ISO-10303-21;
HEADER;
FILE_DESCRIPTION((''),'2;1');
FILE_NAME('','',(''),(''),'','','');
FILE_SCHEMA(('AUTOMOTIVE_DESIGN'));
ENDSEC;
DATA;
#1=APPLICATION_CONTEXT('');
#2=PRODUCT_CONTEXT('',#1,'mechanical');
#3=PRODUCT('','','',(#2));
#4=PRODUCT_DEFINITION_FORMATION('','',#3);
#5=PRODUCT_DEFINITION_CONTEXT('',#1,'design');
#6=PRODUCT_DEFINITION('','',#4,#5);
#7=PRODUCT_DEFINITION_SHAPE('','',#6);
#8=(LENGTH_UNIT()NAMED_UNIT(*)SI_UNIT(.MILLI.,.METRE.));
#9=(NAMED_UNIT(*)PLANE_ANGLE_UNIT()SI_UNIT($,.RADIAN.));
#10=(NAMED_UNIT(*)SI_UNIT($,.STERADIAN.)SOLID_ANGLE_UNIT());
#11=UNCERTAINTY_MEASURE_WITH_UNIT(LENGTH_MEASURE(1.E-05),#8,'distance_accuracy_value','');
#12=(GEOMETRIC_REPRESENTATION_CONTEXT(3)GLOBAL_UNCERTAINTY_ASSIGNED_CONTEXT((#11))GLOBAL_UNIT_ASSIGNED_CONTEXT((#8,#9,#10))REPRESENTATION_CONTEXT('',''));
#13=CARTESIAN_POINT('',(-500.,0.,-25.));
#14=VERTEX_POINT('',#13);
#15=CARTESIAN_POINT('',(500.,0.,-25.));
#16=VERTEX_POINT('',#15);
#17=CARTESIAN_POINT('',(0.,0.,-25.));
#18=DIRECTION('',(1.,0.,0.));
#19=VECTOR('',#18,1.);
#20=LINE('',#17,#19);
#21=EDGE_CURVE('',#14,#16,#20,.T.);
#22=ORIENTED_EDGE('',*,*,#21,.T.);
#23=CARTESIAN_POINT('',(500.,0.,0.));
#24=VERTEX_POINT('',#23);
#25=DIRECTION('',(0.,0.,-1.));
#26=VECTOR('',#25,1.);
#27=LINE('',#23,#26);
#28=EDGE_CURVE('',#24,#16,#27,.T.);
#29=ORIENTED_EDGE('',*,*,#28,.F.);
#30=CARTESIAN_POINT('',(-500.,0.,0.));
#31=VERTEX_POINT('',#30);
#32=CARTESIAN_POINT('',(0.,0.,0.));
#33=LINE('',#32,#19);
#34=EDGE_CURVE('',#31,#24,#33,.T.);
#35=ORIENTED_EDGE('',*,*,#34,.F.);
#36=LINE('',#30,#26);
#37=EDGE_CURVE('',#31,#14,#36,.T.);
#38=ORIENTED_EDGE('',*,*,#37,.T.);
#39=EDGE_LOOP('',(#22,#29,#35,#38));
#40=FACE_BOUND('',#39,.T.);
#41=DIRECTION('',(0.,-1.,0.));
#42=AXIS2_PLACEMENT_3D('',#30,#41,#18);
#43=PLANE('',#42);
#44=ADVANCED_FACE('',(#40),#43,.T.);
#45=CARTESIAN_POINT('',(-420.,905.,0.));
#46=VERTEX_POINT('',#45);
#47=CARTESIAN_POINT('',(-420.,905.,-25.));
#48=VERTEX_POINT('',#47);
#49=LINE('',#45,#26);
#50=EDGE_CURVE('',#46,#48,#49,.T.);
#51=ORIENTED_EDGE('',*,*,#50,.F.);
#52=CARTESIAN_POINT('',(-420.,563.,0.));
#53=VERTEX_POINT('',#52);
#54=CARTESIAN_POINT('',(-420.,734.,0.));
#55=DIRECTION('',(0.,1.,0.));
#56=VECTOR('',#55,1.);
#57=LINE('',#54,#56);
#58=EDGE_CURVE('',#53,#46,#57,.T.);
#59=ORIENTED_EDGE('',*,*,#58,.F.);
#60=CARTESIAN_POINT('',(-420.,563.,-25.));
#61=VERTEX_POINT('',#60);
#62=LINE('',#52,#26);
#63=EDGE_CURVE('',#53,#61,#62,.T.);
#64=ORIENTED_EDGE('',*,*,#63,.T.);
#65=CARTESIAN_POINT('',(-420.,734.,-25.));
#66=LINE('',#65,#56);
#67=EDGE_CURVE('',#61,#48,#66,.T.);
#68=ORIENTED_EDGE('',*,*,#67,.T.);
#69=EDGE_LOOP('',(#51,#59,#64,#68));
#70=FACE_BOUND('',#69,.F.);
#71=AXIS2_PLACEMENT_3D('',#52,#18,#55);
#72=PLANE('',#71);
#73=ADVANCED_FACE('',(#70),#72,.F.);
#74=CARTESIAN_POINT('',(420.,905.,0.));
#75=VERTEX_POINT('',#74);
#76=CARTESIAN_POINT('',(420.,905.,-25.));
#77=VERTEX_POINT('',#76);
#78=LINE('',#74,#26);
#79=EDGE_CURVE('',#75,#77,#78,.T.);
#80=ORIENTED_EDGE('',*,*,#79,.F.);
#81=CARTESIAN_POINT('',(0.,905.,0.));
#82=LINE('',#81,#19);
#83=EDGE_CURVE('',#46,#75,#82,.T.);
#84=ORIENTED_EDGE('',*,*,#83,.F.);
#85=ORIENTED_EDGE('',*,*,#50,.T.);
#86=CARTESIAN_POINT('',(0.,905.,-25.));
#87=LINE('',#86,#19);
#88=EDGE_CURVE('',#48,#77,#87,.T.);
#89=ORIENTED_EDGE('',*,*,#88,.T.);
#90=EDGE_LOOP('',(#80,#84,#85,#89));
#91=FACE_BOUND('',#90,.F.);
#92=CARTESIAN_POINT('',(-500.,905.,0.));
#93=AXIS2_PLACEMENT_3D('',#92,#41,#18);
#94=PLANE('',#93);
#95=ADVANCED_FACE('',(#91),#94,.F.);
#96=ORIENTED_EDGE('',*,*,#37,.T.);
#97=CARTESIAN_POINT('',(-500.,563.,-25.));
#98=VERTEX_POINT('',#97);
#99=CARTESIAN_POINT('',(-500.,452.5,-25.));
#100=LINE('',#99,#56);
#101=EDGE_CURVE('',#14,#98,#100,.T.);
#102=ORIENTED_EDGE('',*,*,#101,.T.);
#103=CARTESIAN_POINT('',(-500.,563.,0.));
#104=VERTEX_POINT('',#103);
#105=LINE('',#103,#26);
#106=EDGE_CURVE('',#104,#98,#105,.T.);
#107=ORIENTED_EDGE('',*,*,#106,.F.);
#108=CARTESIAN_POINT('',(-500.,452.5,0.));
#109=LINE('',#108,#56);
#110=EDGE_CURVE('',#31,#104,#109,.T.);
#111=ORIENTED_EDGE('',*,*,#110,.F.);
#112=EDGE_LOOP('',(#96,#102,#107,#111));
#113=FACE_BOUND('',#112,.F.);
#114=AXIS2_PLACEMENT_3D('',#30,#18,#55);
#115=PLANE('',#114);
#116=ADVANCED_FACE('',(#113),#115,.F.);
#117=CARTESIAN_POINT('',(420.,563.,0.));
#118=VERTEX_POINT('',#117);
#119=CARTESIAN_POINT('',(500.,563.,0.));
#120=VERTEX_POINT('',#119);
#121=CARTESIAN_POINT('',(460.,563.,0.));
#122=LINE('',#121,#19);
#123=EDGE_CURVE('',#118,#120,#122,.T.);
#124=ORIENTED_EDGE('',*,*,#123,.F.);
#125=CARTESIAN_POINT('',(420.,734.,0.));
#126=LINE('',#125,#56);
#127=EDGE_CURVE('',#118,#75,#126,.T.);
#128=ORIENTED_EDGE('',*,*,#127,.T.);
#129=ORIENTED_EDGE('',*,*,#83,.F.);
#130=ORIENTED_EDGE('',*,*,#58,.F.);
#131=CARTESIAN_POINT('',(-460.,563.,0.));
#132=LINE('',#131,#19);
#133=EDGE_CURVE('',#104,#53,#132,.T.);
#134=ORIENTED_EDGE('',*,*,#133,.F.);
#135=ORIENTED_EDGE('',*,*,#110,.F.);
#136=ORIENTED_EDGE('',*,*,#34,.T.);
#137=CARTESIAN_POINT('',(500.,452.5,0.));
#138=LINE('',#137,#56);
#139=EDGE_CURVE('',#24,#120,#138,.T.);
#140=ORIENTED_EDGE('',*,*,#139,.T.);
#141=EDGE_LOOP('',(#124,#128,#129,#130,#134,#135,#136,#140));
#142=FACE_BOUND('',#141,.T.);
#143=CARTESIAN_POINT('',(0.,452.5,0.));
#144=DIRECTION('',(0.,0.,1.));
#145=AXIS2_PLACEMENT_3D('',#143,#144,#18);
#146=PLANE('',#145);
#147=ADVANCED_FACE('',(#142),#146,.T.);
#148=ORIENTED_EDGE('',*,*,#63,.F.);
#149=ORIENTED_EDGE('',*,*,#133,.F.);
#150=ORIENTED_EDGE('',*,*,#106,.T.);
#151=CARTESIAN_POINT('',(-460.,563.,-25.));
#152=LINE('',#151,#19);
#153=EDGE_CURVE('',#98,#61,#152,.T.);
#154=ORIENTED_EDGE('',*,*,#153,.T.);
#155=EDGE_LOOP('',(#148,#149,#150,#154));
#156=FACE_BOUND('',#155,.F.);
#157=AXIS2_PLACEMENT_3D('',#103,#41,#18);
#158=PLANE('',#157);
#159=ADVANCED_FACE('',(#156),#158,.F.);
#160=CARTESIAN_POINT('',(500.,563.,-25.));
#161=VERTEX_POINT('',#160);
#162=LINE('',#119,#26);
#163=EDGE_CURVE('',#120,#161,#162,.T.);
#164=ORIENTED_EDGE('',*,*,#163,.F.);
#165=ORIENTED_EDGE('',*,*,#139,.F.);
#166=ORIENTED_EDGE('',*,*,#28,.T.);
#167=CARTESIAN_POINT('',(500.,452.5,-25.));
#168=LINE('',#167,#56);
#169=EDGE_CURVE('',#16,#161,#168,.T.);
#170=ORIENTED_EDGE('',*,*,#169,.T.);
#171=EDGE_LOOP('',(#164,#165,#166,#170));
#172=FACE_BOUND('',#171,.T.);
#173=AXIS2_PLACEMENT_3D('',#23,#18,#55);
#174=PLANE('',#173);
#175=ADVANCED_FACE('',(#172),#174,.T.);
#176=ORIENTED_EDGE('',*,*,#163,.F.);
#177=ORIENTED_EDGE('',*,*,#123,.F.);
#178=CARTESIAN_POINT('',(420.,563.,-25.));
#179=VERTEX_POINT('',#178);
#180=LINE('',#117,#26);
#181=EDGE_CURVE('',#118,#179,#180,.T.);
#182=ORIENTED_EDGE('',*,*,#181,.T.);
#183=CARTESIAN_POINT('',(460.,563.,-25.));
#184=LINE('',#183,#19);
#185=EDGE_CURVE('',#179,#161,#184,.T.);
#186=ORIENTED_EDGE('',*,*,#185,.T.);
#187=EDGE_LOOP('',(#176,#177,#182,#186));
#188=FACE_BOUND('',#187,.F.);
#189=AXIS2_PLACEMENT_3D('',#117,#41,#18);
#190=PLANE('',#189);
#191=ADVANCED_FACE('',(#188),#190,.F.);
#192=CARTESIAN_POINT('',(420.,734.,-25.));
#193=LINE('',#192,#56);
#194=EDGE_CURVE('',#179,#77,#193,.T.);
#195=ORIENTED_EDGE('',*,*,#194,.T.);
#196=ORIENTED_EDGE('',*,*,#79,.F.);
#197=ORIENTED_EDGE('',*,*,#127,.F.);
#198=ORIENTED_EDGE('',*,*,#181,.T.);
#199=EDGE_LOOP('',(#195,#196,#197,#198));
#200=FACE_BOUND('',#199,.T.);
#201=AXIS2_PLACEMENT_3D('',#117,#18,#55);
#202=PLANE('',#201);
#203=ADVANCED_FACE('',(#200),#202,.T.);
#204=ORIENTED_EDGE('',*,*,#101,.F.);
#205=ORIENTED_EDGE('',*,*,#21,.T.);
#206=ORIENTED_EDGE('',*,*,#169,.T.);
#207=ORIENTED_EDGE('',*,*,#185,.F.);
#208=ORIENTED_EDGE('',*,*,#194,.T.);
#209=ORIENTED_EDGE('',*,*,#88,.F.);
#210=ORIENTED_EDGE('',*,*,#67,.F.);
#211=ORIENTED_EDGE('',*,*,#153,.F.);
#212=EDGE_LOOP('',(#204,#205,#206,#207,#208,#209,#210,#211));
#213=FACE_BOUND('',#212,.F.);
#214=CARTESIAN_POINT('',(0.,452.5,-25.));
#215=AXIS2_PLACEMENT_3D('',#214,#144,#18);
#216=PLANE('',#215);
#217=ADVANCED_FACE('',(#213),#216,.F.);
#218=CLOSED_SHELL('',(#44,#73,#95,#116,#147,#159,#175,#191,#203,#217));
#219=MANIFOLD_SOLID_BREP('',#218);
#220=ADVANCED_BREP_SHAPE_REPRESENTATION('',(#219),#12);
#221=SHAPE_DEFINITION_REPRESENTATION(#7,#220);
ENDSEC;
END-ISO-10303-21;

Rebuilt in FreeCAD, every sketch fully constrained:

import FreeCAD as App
import Part
import Sketcher
from FreeCAD import Vector
Q = App.Units.Quantity


def add_polygon(sketch, points):
    """Adds a closed chain of lines whose ends are joined by coincident constraints."""
    first, n = sketch.GeometryCount, len(points)
    for a, b in zip(points, points[1:] + points[:1]):
        sketch.addGeometry(Part.LineSegment(App.Vector(*a, 0), App.Vector(*b, 0)), False)
    for i in range(n):
        sketch.addConstraint(Sketcher.Constraint("Coincident", first + i, 2, first + (i + 1) % n, 1))

doc = App.newDocument("Part")
body = doc.addObject("PartDesign::Body", "Body")

sketch1 = doc.addObject("Sketcher::SketchObject", "Sketch")
body.addObject(sketch1)
sketch1.AttachmentSupport = (doc.XY_Plane, [""])
sketch1.MapMode = "FlatFace"
add_polygon(sketch1, [(-500, 905), (-500, 0), (500, 0), (500, 905)])
sketch1.addConstraint([
    Sketcher.Constraint("Vertical", 0),
    Sketcher.Constraint("Horizontal", 1),
    Sketcher.Constraint("Vertical", 2),
    Sketcher.Constraint("Horizontal", 3),
    Sketcher.Constraint("Symmetric", 0, 2, 1, 2, -1, 1),
    Sketcher.Constraint("DistanceX", 1, 1, 1, 2, Q("1000 mm")),
    Sketcher.Constraint("DistanceY", 0, 2, 0, 1, Q("905 mm")),
])
pad1 = doc.addObject("PartDesign::Pad", "Pad")
body.addObject(pad1)
pad1.Profile = sketch1
pad1.Length = 25
pad1.Reversed = True

sketch2 = doc.addObject("Sketcher::SketchObject", "Sketch001")
body.addObject(sketch2)
sketch2.AttachmentSupport = (doc.XY_Plane, [""])
sketch2.MapMode = "FlatFace"
add_polygon(sketch2, [(-500, 905), (-500, 563), (-420, 563), (-420, 905)])
add_polygon(sketch2, [(420, 905), (420, 563), (500, 563), (500, 905)])
sketch2.addConstraint([
    Sketcher.Constraint("Vertical", 0),
    Sketcher.Constraint("Horizontal", 1),
    Sketcher.Constraint("Vertical", 2),
    Sketcher.Constraint("Horizontal", 3),
    Sketcher.Constraint("Vertical", 4),
    Sketcher.Constraint("Horizontal", 5),
    Sketcher.Constraint("Vertical", 6),
    Sketcher.Constraint("Horizontal", 7),
    Sketcher.Constraint("Symmetric", 1, 2, 4, 2, -2),
    Sketcher.Constraint("Symmetric", 3, 2, 6, 2, -2),
    Sketcher.Constraint("DistanceX", 1, 1, 1, 2, Q("80 mm")),
    Sketcher.Constraint("DistanceY", 0, 2, 0, 1, Q("342 mm")),
    Sketcher.Constraint("DistanceX", 0, 2, -1, 1, Q("500 mm")),
    Sketcher.Constraint("DistanceY", -1, 1, 0, 2, Q("563 mm")),
])
pocket1 = doc.addObject("PartDesign::Pocket", "Pocket")
body.addObject(pocket1)
pocket1.Profile = sketch2
pocket1.Length = 25

doc.recompute()
